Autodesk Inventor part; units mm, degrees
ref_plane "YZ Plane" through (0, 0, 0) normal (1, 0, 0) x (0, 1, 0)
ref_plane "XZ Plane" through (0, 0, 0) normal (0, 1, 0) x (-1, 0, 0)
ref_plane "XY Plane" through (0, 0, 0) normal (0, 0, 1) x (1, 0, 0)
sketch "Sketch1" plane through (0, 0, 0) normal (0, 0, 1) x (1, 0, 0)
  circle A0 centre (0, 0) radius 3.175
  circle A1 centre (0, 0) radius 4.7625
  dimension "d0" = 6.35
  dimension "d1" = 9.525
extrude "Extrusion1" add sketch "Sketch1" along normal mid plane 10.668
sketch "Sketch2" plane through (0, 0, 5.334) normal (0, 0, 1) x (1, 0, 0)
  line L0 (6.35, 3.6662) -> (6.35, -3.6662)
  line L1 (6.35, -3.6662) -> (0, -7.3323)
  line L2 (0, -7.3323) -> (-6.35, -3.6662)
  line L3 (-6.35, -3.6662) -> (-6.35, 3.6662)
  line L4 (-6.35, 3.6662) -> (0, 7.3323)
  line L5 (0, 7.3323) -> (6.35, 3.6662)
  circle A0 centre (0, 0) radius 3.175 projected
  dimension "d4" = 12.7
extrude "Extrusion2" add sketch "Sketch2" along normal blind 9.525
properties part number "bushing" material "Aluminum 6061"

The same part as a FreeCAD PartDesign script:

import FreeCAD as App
import Part
import Sketcher
Q = App.Units.Quantity


def add_polygon(sketch, points):
    """Adds a closed chain of lines whose ends are joined by coincident constraints."""
    first, n = sketch.GeometryCount, len(points)
    for a, b in zip(points, points[1:] + points[:1]):
        sketch.addGeometry(Part.LineSegment(App.Vector(*a, 0), App.Vector(*b, 0)), False)
    for i in range(n):
        sketch.addConstraint(Sketcher.Constraint("Coincident", first + i, 2, first + (i + 1) % n, 1))

doc = App.newDocument("Part")
body = doc.addObject("PartDesign::Body", "Body")

sketch1 = doc.addObject("Sketcher::SketchObject", "Sketch")
body.addObject(sketch1)
sketch1.AttachmentSupport = (doc.XY_Plane, [""])
sketch1.MapMode = "FlatFace"
sketch1.addGeometry(Part.Circle(App.Vector(0, 0, 0), App.Vector(0, 0, 1), 4.7625), False)
sketch1.addGeometry(Part.Circle(App.Vector(0, 0, 0), App.Vector(0, 0, 1), 3.175), False)
sketch1.addConstraint(Sketcher.Constraint("Coincident", 0, 3, -1, 1))
sketch1.addConstraint(Sketcher.Constraint("Coincident", 1, 3, -1, 1))
sketch1.addConstraint(Sketcher.Constraint("Diameter", 1, Q("0.25 in")))
sketch1.addConstraint(Sketcher.Constraint("Diameter", 0, Q("0.375 in")))
pad1 = doc.addObject("PartDesign::Pad", "Pad")
body.addObject(pad1)
pad1.Profile = sketch1
pad1.Length = Q("0.42 in")
pad1.Midplane = True

sketch2 = doc.addObject("Sketcher::SketchObject", "Sketch001")
body.addObject(sketch2)
sketch2.AttachmentSupport = (doc.XY_Plane, [""])
sketch2.MapMode = "FlatFace"
sketch2.AttachmentOffset = App.Placement(App.Vector(0, 0, 0.21 * 25.4), App.Rotation())
add_polygon(sketch2, [(6.35, -3.6662), (6.35, 3.6662), (0, 7.3323), (-6.35, 3.6662), (-6.35, -3.6662), (0, -7.3323)])
sketch2.addGeometry(Part.Circle(App.Vector(0, 0, 0), App.Vector(0, 0, 1), 3.175), False)
sketch2.addConstraint(Sketcher.Constraint("Vertical", 0))
sketch2.addConstraint(Sketcher.Constraint("Vertical", 3))
sketch2.addConstraint(Sketcher.Constraint("Coincident", 6, 3, -1, 1))
sketch2.addConstraint(Sketcher.Constraint("Symmetric", 0, 2, 3, 2, -1, 1))
sketch2.addConstraint(Sketcher.Constraint("Symmetric", 1, 2, 4, 2, -1, 1))
sketch2.addConstraint(Sketcher.Constraint("PointOnObject", 1, 2, -2))
sketch2.addConstraint(Sketcher.Constraint("Parallel", 2, 5))
sketch2.addConstraint(Sketcher.Constraint("Horizontal", 0, 2, 2, 2))
sketch2.addConstraint(Sketcher.Constraint("DistanceX", 2, 2, 0, 2, Q("0.5 in")))
sketch2.addConstraint(Sketcher.Constraint("Diameter", 6, Q("0.25 in")))
sketch2.addConstraint(Sketcher.Constraint("Angle", 1, Q("150.0005 deg")))
sketch2.addConstraint(Sketcher.Constraint("DistanceY", 3, 2, 1, 2, Q("0.433 in")))
pad2 = doc.addObject("PartDesign::Pad", "Pad001")
body.addObject(pad2)
pad2.Profile = sketch2
pad2.Length = Q("0.375 in")

doc.recompute()
